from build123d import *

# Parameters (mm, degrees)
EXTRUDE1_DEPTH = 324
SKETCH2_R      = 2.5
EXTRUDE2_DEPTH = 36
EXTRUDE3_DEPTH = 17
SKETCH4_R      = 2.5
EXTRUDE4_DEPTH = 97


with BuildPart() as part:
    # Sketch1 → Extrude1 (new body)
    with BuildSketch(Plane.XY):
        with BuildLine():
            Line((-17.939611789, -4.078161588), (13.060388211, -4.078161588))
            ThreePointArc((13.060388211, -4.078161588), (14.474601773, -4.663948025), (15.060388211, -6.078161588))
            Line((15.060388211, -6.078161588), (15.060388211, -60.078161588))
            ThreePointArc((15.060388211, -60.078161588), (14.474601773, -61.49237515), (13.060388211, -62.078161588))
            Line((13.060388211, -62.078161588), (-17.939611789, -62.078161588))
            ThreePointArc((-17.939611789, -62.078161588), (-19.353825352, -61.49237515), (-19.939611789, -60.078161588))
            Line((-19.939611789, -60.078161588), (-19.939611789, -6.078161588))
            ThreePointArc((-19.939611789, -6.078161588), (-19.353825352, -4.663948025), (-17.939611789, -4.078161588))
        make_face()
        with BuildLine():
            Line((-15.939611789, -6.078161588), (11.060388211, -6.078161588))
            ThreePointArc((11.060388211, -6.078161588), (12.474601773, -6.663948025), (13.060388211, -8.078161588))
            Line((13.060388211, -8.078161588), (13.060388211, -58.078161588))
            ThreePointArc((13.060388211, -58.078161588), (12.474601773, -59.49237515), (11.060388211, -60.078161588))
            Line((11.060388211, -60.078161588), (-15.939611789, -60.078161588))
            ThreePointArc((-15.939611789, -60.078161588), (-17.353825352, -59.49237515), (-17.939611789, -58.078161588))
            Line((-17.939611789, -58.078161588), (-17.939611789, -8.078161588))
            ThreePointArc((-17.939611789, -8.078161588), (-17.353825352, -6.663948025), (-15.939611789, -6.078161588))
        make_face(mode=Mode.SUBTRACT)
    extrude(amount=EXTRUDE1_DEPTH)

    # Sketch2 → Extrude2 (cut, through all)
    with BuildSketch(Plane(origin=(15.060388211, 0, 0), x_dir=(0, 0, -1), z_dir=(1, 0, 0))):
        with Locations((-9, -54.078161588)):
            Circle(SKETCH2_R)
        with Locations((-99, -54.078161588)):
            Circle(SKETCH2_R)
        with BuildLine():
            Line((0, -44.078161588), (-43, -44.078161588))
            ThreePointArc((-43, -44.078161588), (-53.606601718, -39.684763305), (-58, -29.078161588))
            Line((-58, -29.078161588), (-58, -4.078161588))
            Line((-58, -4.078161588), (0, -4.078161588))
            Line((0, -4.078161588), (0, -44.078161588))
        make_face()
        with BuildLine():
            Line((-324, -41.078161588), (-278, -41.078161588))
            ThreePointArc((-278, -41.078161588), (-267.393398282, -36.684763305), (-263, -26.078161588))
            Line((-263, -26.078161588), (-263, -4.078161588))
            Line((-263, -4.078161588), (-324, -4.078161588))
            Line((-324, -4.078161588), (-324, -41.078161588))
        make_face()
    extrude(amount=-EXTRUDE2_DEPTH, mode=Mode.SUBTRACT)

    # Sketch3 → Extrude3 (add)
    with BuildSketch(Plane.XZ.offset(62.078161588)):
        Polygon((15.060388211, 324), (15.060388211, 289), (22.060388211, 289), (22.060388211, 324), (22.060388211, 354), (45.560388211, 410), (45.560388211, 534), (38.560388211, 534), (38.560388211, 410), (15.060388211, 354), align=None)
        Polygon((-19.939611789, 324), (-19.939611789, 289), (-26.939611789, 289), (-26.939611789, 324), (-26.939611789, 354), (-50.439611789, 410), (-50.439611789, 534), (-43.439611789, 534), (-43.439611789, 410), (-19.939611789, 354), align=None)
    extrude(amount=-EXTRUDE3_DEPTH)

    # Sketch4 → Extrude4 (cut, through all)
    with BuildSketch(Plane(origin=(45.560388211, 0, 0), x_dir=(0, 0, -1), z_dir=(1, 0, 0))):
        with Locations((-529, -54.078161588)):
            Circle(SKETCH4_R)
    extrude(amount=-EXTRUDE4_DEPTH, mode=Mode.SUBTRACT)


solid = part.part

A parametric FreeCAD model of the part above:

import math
import FreeCAD as App
import Part
import Sketcher
from FreeCAD import Vector
Q = App.Units.Quantity


def add_polygon(sketch, points):
    """Adds a closed chain of lines whose ends are joined by coincident constraints."""
    first, n = sketch.GeometryCount, len(points)
    for a, b in zip(points, points[1:] + points[:1]):
        sketch.addGeometry(Part.LineSegment(App.Vector(*a, 0), App.Vector(*b, 0)), False)
    for i in range(n):
        sketch.addConstraint(Sketcher.Constraint("Coincident", first + i, 2, first + (i + 1) % n, 1))

doc = App.newDocument("Part")
body = doc.addObject("PartDesign::Body", "Body")

# Sketch on XY plane
sketch1 = body.newObject("Sketcher::SketchObject", "Sketch")
sketch1.AttachmentSupport = (doc.getObject("XY_Plane"), [""])
sketch1.MapMode = "FlatFace"
sketch1.addGeometry([
    Part.LineSegment(Vector(13.1, -4.1, 0), Vector(-17.9, -4.1, 0)),  # 0
    Part.ArcOfCircle(Part.Circle(Vector(-17.9, -6.1, 0), Vector(0, 0, 1), 2), math.radians(90), math.radians(180)),  # 1
    Part.LineSegment(Vector(-19.9, -6.1, 0), Vector(-19.9, -60.1, 0)),  # 2
    Part.ArcOfCircle(Part.Circle(Vector(-17.9, -60.1, 0), Vector(0, 0, 1), 2), math.radians(180), math.radians(270)),  # 3
    Part.LineSegment(Vector(-17.9, -62.1, 0), Vector(13.1, -62.1, 0)),  # 4
    Part.ArcOfCircle(Part.Circle(Vector(13.1, -60.1, 0), Vector(0, 0, 1), 2), math.radians(-90), math.radians(0)),  # 5
    Part.LineSegment(Vector(15.1, -60.1, 0), Vector(15.1, -6.1, 0)),  # 6
    Part.ArcOfCircle(Part.Circle(Vector(13.1, -6.1, 0), Vector(0, 0, 1), 2), math.radians(0), math.radians(90)),  # 7
    Part.LineSegment(Vector(-15.9, -6.1, 0), Vector(11.1, -6.1, 0)),  # 8
    Part.ArcOfCircle(Part.Circle(Vector(11.1, -8.1, 0), Vector(0, 0, 1), 2), math.radians(0), math.radians(90)),  # 9
    Part.LineSegment(Vector(13.1, -8.1, 0), Vector(13.1, -58.1, 0)),  # 10
    Part.ArcOfCircle(Part.Circle(Vector(11.1, -58.1, 0), Vector(0, 0, 1), 2), math.radians(-90), math.radians(0)),  # 11
    Part.LineSegment(Vector(11.1, -60.1, 0), Vector(-15.9, -60.1, 0)),  # 12
    Part.ArcOfCircle(Part.Circle(Vector(-15.9, -58.1, 0), Vector(0, 0, 1), 2), math.radians(180), math.radians(270)),  # 13
    Part.LineSegment(Vector(-17.9, -58.1, 0), Vector(-17.9, -8.1, 0)),  # 14
    Part.ArcOfCircle(Part.Circle(Vector(-15.9, -8.1, 0), Vector(0, 0, 1), 2), math.radians(90), math.radians(180)),  # 15
], False)
sketch1.addConstraint([
    Sketcher.Constraint("Tangent", 0, 2, 1, 1),
    Sketcher.Constraint("Tangent", 1, 2, 2, 1),
    Sketcher.Constraint("Tangent", 2, 2, 3, 1),
    Sketcher.Constraint("Tangent", 3, 2, 4, 1),
    Sketcher.Constraint("Tangent", 4, 2, 5, 1),
    Sketcher.Constraint("Tangent", 5, 2, 6, 1),
    Sketcher.Constraint("Tangent", 6, 2, 7, 1),
    Sketcher.Constraint("Tangent", 7, 2, 0, 1),
    Sketcher.Constraint("Tangent", 8, 2, 9, 2),
    Sketcher.Constraint("Tangent", 9, 1, 10, 1),
    Sketcher.Constraint("Tangent", 10, 2, 11, 2),
    Sketcher.Constraint("Tangent", 11, 1, 12, 1),
    Sketcher.Constraint("Tangent", 12, 2, 13, 2),
    Sketcher.Constraint("Tangent", 13, 1, 14, 1),
    Sketcher.Constraint("Tangent", 14, 2, 15, 2),
    Sketcher.Constraint("Tangent", 15, 1, 8, 1),
    Sketcher.Constraint("Horizontal", 0),
    Sketcher.Constraint("Vertical", 2),
    Sketcher.Constraint("Horizontal", 4),
    Sketcher.Constraint("Vertical", 6),
    Sketcher.Constraint("Horizontal", 8),
    Sketcher.Constraint("Vertical", 10),
    Sketcher.Constraint("Horizontal", 12),
    Sketcher.Constraint("Vertical", 14),
    Sketcher.Constraint("Equal", 1, 3),
    Sketcher.Constraint("Equal", 3, 5),
    Sketcher.Constraint("Equal", 5, 7),
    Sketcher.Constraint("Equal", 7, 9),
    Sketcher.Constraint("Equal", 9, 11),
    Sketcher.Constraint("Equal", 11, 13),
    Sketcher.Constraint("Equal", 13, 15),
    Sketcher.Constraint("Horizontal", 6, 2, 8, 2),
    Sketcher.Constraint("Horizontal", 5, 2, 11, 1),
    Sketcher.Constraint("Vertical", 7, 2, 9, 1),
    Sketcher.Constraint("Vertical", 3, 2, 13, 1),
    Sketcher.Constraint("Radius", 1, Q("2 mm")),
    Sketcher.Constraint("DistanceX", 0, 2, 0, 1, Q("31 mm")),
    Sketcher.Constraint("DistanceY", 2, 2, 2, 1, Q("54 mm")),
    Sketcher.Constraint("DistanceX", 1, 3, -1, 1, Q("17.939612 mm")),
    Sketcher.Constraint("DistanceY", 1, 3, -1, 1, Q("6.078162 mm")),
])
pad1 = body.newObject("PartDesign::Pad", "Pad")
pad1.Profile = sketch1
pad1.Length = 324

# Sketch on YZ plane
sketch2 = body.newObject("Sketcher::SketchObject", "Sketch001")
sketch2.AttachmentSupport = (doc.getObject("YZ_Plane"), [""])
sketch2.MapMode = "FlatFace"
sketch2.AttachmentOffset = App.Placement(Vector(0, 0, 15.060388), App.Rotation())
sketch2.addGeometry([
    Part.Circle(Vector(-54.1, 9, 0), Vector(0, 0, 1), 2.5),  # 0
    Part.Circle(Vector(-54.1, 99, 0), Vector(0, 0, 1), 2.5),  # 1
    Part.LineSegment(Vector(-44.1, 43, 0), Vector(-44.1, 0, 0)),  # 2
    Part.LineSegment(Vector(-44.1, 0, 0), Vector(-4.1, 0, 0)),  # 3
    Part.LineSegment(Vector(-4.1, 0, 0), Vector(-4.1, 58, 0)),  # 4
    Part.LineSegment(Vector(-4.1, 58, 0), Vector(-29.1, 58, 0)),  # 5
    Part.ArcOfCircle(Part.Circle(Vector(-29.1, 43, 0), Vector(0, 0, 1), 15), math.radians(90), math.radians(180)),  # 6
    Part.LineSegment(Vector(-41.1, 324, 0), Vector(-41.1, 278, 0)),  # 7
    Part.ArcOfCircle(Part.Circle(Vector(-26.1, 278, 0), Vector(0, 0, 1), 15), math.radians(-180), math.radians(-90)),  # 8
    Part.LineSegment(Vector(-26.1, 263, 0), Vector(-4.1, 263, 0)),  # 9
    Part.LineSegment(Vector(-4.1, 263, 0), Vector(-4.1, 324, 0)),  # 10
    Part.LineSegment(Vector(-4.1, 324, 0), Vector(-41.1, 324, 0)),  # 11
], False)
sketch2.addConstraint([
    Sketcher.Constraint("Coincident", 2, 2, 3, 1),
    Sketcher.Constraint("Coincident", 3, 2, 4, 1),
    Sketcher.Constraint("Coincident", 4, 2, 5, 1),
    Sketcher.Constraint("Tangent", 5, 2, 6, 1),
    Sketcher.Constraint("Tangent", 6, 2, 2, 1),
    Sketcher.Constraint("Tangent", 7, 2, 8, 1),
    Sketcher.Constraint("Tangent", 8, 2, 9, 1),
    Sketcher.Constraint("Coincident", 9, 2, 10, 1),
    Sketcher.Constraint("Coincident", 10, 2, 11, 1),
    Sketcher.Constraint("Coincident", 11, 2, 7, 1),
    Sketcher.Constraint("Vertical", 2),
    Sketcher.Constraint("Horizontal", 3),
    Sketcher.Constraint("Vertical", 4),
    Sketcher.Constraint("Horizontal", 5),
    Sketcher.Constraint("Vertical", 7),
    Sketcher.Constraint("Horizontal", 9),
    Sketcher.Constraint("Vertical", 10),
    Sketcher.Constraint("Horizontal", 11),
    Sketcher.Constraint("Equal", 0, 1),
    Sketcher.Constraint("Equal", 6, 8),
    Sketcher.Constraint("PointOnObject", 2, 2, -1),
    Sketcher.Constraint("Vertical", 0, 3, 1, 3),
    Sketcher.Constraint("Vertical", 4, 2, 9, 2),
    Sketcher.Constraint("Diameter", 0, Q("5 mm")),
    Sketcher.Constraint("Radius", 6, Q("15 mm")),
    Sketcher.Constraint("DistanceX", 3, 1, 3, 2, Q("40 mm")),
    Sketcher.Constraint("DistanceX", 9, 1, 9, 2, Q("22 mm")),
    Sketcher.Constraint("DistanceY", 2, 2, 2, 1, Q("43 mm")),
    Sketcher.Constraint("DistanceY", 7, 2, 7, 1, Q("46 mm")),
    Sketcher.Constraint("DistanceY", -1, 1, 0, 3, Q("9 mm")),
    Sketcher.Constraint("DistanceY", -1, 1, 1, 3, Q("99 mm")),
    Sketcher.Constraint("DistanceY", -1, 1, 8, 3, Q("278 mm")),
    Sketcher.Constraint("DistanceX", 0, 3, 6, 3, Q("25 mm")),
    Sketcher.Constraint("DistanceX", 0, 3, -1, 1, Q("54.078162 mm")),
])
pocket1 = body.newObject("PartDesign::Pocket", "Pocket")
pocket1.Profile = sketch2
pocket1.Type = "ThroughAll"

# Sketch on XZ plane
sketch3 = body.newObject("Sketcher::SketchObject", "Sketch002")
sketch3.AttachmentSupport = (doc.getObject("XZ_Plane"), [""])
sketch3.MapMode = "FlatFace"
sketch3.AttachmentOffset = App.Placement(Vector(0, 0, 62.078162), App.Rotation())
add_polygon(sketch3, [(15, 289), (22, 289), (22, 354), (46, 410), (46, 534), (39, 534), (39, 410), (15, 354)])  # lines 0-7
add_polygon(sketch3, [(-20, 289), (-20, 354), (-43, 410), (-43, 534), (-50, 534), (-50, 410), (-27, 354), (-27, 289)])  # lines 8-15
sketch3.addConstraint([
    Sketcher.Constraint("Horizontal", 0),
    Sketcher.Constraint("Vertical", 1),
    Sketcher.Constraint("Vertical", 3),
    Sketcher.Constraint("Horizontal", 4),
    Sketcher.Constraint("Vertical", 5),
    Sketcher.Constraint("Vertical", 7),
    Sketcher.Constraint("Vertical", 8),
    Sketcher.Constraint("Vertical", 10),
    Sketcher.Constraint("Horizontal", 11),
    Sketcher.Constraint("Vertical", 12),
    Sketcher.Constraint("Vertical", 14),
    Sketcher.Constraint("Horizontal", 15),
    Sketcher.Constraint("Parallel", 2, 6),
    Sketcher.Constraint("Parallel", 9, 13),
    Sketcher.Constraint("Horizontal", 2, 2, 5, 2),
    Sketcher.Constraint("Horizontal", 1, 2, 6, 2),
    Sketcher.Constraint("Horizontal", 6, 2, 8, 2),
    Sketcher.Constraint("Horizontal", 5, 2, 9, 2),
    Sketcher.Constraint("Horizontal", 4, 2, 10, 2),
    Sketcher.Constraint("Horizontal", 9, 2, 12, 2),
    Sketcher.Constraint("Horizontal", 8, 2, 13, 2),
    Sketcher.Constraint("Horizontal", 7, 2, 14, 2),
    Sketcher.Constraint("Equal", 4, 11),
    Sketcher.Constraint("Equal", 6, 9),
    Sketcher.Constraint("DistanceX", 0, 1, 0, 2, Q("7 mm")),
    Sketcher.Constraint("DistanceY", 1, 1, 1, 2, Q("65 mm")),
    Sketcher.Constraint("DistanceY", 3, 1, 3, 2, Q("124 mm")),
    Sketcher.Constraint("DistanceY", -1, 1, 0, 2, Q("289 mm")),
    Sketcher.Constraint("DistanceY", -1, 1, 2, 2, Q("410 mm")),
    Sketcher.Constraint("DistanceX", 8, 2, 6, 2, Q("35 mm")),
    Sketcher.Constraint("DistanceX", 9, 2, 5, 2, Q("82 mm")),
    Sketcher.Constraint("DistanceX", -1, 1, 0, 2, Q("22.060388 mm")),
])
pad2 = body.newObject("PartDesign::Pad", "Pad001")
pad2.Profile = sketch3
pad2.Length = 17
pad2.Reversed = True

# Sketch on YZ plane
sketch4 = body.newObject("Sketcher::SketchObject", "Sketch003")
sketch4.AttachmentSupport = (doc.getObject("YZ_Plane"), [""])
sketch4.MapMode = "FlatFace"
sketch4.AttachmentOffset = App.Placement(Vector(0, 0, 45.560388), App.Rotation())
sketch4.addGeometry(Part.Circle(Vector(-54.1, 529, 0), Vector(0, 0, 1), 2.5), False)
sketch4.addConstraint([
    Sketcher.Constraint("Diameter", 0, Q("5 mm")),
    Sketcher.Constraint("DistanceY", -1, 1, 0, 3, Q("529 mm")),
    Sketcher.Constraint("DistanceX", 0, 3, -1, 1, Q("54.078162 mm")),
])
pocket2 = body.newObject("PartDesign::Pocket", "Pocket001")
pocket2.Profile = sketch4
pocket2.Type = "ThroughAll"

doc.recompute()
